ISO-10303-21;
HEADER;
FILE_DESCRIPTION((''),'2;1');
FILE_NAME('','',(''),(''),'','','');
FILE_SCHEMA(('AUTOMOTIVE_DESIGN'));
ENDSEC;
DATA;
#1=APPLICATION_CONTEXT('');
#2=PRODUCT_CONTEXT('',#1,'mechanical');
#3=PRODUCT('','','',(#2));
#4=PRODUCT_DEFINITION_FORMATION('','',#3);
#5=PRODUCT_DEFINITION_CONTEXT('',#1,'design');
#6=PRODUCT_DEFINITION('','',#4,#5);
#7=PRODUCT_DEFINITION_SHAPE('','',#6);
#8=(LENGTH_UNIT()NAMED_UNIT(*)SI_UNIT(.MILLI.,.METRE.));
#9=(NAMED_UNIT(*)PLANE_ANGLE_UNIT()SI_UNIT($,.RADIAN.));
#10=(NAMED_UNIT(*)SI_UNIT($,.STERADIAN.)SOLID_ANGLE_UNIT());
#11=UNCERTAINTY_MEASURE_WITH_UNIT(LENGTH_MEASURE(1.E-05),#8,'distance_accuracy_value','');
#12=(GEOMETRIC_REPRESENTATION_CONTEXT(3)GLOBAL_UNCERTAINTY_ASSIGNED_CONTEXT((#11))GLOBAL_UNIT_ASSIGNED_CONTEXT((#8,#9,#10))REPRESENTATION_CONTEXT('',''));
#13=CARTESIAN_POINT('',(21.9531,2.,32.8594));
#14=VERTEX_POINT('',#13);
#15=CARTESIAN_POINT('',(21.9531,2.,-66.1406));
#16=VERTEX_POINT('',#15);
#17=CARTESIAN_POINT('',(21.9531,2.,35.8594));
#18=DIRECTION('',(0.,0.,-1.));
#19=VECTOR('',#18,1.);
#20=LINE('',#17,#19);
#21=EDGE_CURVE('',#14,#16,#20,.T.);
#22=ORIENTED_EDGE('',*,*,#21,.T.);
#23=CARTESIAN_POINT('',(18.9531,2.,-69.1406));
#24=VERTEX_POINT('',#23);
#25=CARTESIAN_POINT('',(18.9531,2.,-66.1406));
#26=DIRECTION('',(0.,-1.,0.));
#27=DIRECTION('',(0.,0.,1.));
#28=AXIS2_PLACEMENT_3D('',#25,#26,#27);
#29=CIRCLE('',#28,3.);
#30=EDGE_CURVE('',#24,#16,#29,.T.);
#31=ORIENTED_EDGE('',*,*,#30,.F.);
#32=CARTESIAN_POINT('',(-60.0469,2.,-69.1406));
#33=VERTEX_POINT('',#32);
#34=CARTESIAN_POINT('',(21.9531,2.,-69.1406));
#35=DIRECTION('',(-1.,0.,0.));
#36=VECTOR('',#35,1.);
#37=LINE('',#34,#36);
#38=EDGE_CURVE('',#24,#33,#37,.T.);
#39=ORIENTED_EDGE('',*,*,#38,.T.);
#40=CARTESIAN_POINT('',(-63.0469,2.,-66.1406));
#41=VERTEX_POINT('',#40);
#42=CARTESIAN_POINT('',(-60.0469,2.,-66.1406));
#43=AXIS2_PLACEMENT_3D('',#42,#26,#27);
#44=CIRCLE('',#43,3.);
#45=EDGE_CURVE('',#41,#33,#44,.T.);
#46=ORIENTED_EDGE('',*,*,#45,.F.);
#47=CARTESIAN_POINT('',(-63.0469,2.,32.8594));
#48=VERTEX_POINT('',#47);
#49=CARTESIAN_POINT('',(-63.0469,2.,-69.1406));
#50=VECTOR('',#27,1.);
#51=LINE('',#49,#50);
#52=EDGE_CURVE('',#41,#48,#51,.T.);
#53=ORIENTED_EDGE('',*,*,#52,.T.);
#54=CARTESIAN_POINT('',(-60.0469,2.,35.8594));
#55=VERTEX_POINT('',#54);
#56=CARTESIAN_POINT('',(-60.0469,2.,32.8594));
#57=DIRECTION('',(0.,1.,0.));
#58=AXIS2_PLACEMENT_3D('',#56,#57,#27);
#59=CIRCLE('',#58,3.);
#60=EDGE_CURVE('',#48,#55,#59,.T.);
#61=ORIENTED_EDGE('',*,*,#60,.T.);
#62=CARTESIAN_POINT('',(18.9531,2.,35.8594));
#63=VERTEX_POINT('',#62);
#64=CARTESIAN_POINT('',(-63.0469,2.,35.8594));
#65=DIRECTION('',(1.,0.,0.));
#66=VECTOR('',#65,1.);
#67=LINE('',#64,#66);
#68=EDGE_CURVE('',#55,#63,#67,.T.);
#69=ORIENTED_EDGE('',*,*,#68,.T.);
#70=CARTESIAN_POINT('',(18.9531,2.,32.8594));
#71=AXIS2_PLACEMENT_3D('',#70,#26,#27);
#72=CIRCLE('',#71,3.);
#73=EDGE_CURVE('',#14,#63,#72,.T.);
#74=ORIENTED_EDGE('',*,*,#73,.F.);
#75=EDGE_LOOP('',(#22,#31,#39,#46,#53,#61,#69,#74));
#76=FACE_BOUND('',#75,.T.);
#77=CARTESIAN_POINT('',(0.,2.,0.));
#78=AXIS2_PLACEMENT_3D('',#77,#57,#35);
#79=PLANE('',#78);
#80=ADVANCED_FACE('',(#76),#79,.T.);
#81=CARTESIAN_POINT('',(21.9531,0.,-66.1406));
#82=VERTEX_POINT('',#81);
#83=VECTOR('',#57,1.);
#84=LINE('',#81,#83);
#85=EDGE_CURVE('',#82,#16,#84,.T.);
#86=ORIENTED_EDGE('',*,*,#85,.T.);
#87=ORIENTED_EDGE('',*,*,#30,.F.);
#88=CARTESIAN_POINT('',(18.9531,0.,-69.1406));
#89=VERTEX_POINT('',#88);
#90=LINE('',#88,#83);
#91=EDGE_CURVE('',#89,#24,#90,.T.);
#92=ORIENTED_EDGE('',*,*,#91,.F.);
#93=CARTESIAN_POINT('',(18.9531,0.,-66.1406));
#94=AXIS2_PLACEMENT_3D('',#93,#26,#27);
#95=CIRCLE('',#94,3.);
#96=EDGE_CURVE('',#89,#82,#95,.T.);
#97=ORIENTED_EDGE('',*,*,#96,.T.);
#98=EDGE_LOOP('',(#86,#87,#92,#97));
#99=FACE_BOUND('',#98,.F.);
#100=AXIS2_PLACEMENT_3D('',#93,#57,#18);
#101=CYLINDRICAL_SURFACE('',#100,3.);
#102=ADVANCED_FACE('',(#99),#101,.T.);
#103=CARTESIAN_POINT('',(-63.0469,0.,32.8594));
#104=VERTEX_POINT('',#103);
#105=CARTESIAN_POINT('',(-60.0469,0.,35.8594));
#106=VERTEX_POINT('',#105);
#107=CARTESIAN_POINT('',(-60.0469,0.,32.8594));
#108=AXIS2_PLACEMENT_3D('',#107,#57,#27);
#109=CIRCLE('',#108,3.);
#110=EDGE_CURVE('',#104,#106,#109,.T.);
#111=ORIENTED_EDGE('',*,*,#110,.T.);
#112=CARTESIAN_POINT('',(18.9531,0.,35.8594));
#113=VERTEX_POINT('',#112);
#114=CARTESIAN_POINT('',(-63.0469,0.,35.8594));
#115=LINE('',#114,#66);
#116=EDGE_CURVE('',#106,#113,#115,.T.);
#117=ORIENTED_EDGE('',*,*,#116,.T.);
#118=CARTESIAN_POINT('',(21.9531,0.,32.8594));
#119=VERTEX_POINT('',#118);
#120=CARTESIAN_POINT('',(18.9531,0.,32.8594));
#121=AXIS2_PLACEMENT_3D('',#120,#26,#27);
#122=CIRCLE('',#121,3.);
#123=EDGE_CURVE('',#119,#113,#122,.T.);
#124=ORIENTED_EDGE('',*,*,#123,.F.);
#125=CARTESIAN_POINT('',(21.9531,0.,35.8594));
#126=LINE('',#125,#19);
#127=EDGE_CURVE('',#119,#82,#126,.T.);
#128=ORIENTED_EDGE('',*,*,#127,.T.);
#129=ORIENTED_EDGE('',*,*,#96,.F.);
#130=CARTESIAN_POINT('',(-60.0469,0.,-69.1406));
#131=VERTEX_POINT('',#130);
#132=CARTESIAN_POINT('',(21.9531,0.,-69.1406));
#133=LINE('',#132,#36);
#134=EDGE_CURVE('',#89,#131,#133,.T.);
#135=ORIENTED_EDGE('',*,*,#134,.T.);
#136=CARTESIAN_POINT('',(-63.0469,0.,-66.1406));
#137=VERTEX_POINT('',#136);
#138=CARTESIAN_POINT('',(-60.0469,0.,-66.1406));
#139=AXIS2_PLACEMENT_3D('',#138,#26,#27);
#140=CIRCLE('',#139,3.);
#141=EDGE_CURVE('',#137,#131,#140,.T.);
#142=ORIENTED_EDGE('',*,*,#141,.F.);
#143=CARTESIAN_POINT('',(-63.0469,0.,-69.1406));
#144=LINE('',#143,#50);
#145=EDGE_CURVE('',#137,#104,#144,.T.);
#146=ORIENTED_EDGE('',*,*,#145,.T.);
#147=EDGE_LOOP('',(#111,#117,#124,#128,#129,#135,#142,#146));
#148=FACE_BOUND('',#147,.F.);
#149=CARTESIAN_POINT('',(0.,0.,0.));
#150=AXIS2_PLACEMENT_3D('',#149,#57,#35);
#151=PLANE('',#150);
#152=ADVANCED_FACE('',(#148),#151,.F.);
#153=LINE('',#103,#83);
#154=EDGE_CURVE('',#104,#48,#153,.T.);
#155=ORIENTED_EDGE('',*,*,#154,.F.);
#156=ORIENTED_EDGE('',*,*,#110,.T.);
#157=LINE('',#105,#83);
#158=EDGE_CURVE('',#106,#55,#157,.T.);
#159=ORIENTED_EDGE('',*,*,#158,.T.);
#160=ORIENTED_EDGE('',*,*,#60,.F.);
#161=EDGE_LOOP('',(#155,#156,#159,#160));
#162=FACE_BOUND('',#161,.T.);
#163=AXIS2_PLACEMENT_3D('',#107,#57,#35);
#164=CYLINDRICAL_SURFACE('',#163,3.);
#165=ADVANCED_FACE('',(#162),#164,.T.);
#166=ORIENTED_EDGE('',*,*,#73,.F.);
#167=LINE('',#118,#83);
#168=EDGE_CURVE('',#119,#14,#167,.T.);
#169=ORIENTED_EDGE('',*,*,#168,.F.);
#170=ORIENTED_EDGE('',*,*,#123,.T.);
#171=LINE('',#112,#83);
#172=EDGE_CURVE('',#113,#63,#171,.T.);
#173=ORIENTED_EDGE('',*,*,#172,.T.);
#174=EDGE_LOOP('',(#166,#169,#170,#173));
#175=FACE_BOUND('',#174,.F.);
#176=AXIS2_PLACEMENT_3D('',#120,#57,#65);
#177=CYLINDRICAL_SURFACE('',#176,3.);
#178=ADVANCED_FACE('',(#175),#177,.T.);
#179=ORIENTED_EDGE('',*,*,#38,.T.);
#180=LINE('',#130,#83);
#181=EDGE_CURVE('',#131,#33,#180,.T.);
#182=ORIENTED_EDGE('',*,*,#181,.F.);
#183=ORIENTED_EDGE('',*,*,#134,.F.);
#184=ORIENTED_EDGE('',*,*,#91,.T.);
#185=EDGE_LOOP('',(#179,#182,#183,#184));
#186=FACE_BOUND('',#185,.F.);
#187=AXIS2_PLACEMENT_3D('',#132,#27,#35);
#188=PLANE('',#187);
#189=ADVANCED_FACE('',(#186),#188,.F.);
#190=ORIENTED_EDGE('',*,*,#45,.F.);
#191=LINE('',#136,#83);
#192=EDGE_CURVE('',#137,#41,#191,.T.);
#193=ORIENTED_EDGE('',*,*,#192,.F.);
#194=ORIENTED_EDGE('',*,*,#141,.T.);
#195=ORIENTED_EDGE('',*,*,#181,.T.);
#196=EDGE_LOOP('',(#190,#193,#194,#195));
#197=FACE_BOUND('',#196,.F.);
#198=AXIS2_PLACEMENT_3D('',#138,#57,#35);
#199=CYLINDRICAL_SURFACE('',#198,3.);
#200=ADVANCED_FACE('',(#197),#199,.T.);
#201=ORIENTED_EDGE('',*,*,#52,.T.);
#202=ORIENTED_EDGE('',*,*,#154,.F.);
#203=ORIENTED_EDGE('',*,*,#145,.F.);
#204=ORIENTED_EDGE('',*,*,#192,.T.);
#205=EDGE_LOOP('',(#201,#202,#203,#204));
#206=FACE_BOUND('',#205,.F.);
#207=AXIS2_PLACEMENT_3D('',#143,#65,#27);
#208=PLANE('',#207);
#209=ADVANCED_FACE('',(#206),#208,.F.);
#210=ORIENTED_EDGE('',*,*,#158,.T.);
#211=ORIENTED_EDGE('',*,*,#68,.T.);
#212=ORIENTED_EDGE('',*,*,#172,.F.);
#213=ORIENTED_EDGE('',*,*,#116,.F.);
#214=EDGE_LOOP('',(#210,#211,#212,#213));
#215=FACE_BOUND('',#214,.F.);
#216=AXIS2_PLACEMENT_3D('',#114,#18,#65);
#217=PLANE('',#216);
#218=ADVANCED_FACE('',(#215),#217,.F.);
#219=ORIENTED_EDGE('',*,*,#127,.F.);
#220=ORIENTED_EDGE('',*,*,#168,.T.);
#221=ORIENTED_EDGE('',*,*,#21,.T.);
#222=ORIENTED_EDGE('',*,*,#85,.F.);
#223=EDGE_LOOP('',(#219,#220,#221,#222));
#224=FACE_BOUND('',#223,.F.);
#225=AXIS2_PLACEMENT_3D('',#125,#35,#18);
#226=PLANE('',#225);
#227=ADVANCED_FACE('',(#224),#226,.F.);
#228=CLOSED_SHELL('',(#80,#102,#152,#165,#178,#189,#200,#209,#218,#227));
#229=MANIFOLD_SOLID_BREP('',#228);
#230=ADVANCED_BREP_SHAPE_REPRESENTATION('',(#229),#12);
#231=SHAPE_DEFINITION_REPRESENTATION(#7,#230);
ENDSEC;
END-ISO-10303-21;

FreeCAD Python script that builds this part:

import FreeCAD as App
import Part
import Sketcher


def edges_at(feature, points):
    """Names of the edges that pass closest to the given points."""
    edges = feature.Shape.Edges
    near = lambda p: min(range(len(edges)), key=lambda i: edges[i].distToShape(Part.Vertex(*p))[0])
    return sorted({f"Edge{near(p) + 1}" for p in points})


def add_polygon(sketch, points):
    """Adds a closed chain of lines whose ends are joined by coincident constraints."""
    first, n = sketch.GeometryCount, len(points)
    for a, b in zip(points, points[1:] + points[:1]):
        sketch.addGeometry(Part.LineSegment(App.Vector(*a, 0), App.Vector(*b, 0)), False)
    for i in range(n):
        sketch.addConstraint(Sketcher.Constraint("Coincident", first + i, 2, first + (i + 1) % n, 1))

doc = App.newDocument("Part")
body = doc.addObject("PartDesign::Body", "Body")

# Sketch on XZ plane
sketch1 = body.newObject("Sketcher::SketchObject", "Sketch")
sketch1.AttachmentSupport = (doc.getObject("XZ_Plane"), [""])
sketch1.MapMode = "FlatFace"
add_polygon(sketch1, [(-63, -69), (-63, 36), (22, 36), (22, -69)])  # lines 0-3
sketch1.addConstraint([
    Sketcher.Constraint("Vertical", 0),
    Sketcher.Constraint("Horizontal", 1),
    Sketcher.Constraint("Vertical", 2),
    Sketcher.Constraint("Horizontal", 3),
    Sketcher.Constraint("DistanceX", 1, 1, 1, 2, 85.0),
    Sketcher.Constraint("DistanceY", 0, 1, 0, 2, 105.0),
    Sketcher.Constraint("DistanceX", 0, 2, -1, 1, 63.047),
    Sketcher.Constraint("DistanceY", -1, 1, 0, 2, 35.8594),
])
pad1 = body.newObject("PartDesign::Pad", "Pad")
pad1.Profile = sketch1
pad1.Length = 2
pad1.Reversed = True
doc.recompute()

fillet = body.newObject("PartDesign::Fillet", "Fillet")
fillet.Base = (pad1, edges_at(pad1, [
    (21.953, 1, 35.859),
    (21.953, 1, -69.141),
    (-63.047, 1, -69.141),
    (-63.047, 1, 35.859),
]))
fillet.Radius = 3

doc.recompute()
